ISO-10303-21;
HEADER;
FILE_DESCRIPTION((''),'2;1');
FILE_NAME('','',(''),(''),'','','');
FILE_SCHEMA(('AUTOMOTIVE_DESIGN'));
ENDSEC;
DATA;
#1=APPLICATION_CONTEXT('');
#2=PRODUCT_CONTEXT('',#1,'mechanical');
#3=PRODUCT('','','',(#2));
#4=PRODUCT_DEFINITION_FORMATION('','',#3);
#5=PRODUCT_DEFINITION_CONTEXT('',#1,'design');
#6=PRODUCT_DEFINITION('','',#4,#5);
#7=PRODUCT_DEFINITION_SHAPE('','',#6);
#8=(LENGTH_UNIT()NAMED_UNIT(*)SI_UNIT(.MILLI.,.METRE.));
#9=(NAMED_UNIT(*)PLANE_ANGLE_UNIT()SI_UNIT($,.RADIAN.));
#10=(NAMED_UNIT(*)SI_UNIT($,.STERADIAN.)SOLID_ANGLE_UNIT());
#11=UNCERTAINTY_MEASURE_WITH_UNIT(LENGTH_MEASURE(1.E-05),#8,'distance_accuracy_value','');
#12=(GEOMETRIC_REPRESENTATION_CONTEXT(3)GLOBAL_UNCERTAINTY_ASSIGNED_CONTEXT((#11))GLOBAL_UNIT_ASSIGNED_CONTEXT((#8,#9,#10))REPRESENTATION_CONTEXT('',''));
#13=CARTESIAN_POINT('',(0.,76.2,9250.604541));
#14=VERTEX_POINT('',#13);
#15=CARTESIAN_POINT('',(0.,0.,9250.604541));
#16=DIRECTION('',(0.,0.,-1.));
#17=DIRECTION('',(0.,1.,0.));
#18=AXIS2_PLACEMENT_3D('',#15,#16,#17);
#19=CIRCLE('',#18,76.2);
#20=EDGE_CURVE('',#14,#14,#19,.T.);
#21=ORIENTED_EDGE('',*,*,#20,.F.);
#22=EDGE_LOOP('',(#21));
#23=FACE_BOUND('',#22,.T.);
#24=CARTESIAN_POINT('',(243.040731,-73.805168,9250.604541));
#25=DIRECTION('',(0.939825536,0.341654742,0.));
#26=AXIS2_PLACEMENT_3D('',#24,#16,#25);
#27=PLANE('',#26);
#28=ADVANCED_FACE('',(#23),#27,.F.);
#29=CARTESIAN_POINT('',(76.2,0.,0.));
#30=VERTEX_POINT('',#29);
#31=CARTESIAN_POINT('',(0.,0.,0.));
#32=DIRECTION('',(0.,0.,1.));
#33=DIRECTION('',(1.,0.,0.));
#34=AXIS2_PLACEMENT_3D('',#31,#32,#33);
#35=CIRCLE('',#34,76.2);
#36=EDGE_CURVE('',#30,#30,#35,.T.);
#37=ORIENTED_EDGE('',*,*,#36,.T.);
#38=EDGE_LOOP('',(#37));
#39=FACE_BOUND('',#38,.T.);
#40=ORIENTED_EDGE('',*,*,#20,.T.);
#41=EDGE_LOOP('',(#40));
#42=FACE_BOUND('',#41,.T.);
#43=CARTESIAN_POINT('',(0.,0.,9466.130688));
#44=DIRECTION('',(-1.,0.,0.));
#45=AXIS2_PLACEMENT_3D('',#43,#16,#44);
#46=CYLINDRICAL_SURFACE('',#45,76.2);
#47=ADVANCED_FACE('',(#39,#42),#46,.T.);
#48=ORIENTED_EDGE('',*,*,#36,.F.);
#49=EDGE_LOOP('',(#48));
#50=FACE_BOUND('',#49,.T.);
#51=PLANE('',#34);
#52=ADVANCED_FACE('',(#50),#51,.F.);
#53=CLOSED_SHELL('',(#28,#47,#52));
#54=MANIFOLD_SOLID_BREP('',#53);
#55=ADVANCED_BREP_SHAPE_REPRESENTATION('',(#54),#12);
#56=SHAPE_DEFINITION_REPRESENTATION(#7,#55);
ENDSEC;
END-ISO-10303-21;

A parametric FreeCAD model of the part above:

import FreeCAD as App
import Part
import Sketcher
Q = App.Units.Quantity

doc = App.newDocument("Part")
body = doc.addObject("PartDesign::Body", "Body")

# Sketch on XY plane
sketch1 = doc.addObject("Sketcher::SketchObject", "Sketch")
body.addObject(sketch1)
sketch1.AttachmentSupport = (doc.XY_Plane, [""])
sketch1.MapMode = "FlatFace"
sketch1.addGeometry(Part.Circle(App.Vector(0, 0, 0), App.Vector(0, 0, 1), 76.2), False)
sketch1.addConstraint(Sketcher.Constraint("Coincident", 0, 3, -1, 1))
sketch1.addConstraint(Sketcher.Constraint("Diameter", 0, Q("6 in")))
pad1 = doc.addObject("PartDesign::Pad", "Pad")
body.addObject(pad1)
pad1.Profile = sketch1
pad1.Length = 9250.604541

doc.recompute()
